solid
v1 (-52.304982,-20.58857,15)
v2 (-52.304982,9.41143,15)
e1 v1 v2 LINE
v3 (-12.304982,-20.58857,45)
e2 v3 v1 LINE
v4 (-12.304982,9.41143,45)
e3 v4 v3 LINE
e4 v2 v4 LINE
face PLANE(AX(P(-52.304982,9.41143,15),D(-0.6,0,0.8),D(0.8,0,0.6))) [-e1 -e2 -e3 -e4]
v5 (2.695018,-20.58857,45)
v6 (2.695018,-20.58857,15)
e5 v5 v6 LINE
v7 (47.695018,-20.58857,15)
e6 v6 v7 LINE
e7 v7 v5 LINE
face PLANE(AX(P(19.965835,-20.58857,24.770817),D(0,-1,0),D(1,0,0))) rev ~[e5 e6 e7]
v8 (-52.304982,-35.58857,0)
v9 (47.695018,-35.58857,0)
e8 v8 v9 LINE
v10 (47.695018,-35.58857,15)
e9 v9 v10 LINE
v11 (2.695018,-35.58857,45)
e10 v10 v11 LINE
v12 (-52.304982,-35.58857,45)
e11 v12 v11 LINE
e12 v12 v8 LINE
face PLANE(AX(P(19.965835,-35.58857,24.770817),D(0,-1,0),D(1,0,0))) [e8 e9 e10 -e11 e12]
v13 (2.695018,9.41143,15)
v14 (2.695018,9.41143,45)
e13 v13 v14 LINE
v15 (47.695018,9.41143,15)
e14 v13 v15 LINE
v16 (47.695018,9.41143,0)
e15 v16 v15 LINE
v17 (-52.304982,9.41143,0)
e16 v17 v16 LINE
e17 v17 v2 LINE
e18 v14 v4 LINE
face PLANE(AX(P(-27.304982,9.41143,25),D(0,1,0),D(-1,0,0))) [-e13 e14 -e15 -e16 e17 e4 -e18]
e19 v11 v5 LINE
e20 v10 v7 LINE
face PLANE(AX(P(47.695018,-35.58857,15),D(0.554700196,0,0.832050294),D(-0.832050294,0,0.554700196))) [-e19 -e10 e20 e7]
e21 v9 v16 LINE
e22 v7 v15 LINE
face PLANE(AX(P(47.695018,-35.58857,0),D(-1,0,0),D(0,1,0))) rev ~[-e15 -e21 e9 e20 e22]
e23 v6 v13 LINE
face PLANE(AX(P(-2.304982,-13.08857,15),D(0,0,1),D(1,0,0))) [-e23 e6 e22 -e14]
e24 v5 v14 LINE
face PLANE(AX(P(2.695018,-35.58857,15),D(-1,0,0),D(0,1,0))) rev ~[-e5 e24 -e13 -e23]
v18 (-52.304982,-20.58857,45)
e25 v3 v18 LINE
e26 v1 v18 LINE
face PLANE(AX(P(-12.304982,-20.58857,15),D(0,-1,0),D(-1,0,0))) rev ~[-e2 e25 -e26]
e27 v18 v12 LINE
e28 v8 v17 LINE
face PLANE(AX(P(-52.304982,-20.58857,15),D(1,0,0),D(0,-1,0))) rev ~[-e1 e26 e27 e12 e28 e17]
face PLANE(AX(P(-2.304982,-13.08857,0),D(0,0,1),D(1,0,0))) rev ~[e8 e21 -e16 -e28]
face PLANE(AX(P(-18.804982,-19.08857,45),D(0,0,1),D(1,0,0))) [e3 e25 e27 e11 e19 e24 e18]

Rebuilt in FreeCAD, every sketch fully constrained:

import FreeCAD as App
import Part
import Sketcher

V = App.Vector

doc = App.newDocument("Part")
params = doc.addObject("Spreadsheet::Sheet", "Params")
for row, (alias, value) in enumerate([
    ("sketch1_width", "100 mm"),
    ("sketch1_height", "45 mm"),
    ("pad1_length", "15 mm"),
    ("sketch2_width", "15 mm"),
    ("sketch2_width2", "40 mm"),
    ("sketch2_height", "45 mm"),
    ("pad2_length", "30 mm"),
    ("sketch3_width", "40 mm"),
    ("sketch3_height", "30 mm"),
    ("pad3_length", "33 mm"),
    ("sketch4_width", "45 mm"),
    ("sketch4_height", "30 mm"),
    ("pad4_length", "15 mm"),
], start=1):
    params.set(f"A{row}", alias)
    params.set(f"B{row}", "=" + value)
    params.setAlias(f"B{row}", alias)

body = doc.addObject("PartDesign::Body", "Body")

# Sketch on XY plane
sketch1 = body.newObject("Sketcher::SketchObject", "Sketch")
sketch1.AttachmentSupport = (doc.getObject("XY_Plane"), [""])
sketch1.MapMode = "FlatFace"
sketch1.addGeometry([
    Part.LineSegment(V(-52.304982, 9.41143, 0), V(-52.304982, -35.58857, 0)),
    Part.LineSegment(V(-52.304982, -35.58857, 0), V(47.695018, -35.58857, 0)),
    Part.LineSegment(V(47.695018, -35.58857, 0), V(47.695018, 9.41143, 0)),
    Part.LineSegment(V(47.695018, 9.41143, 0), V(-52.304982, 9.41143, 0)),
], False)
sketch1.addConstraint([
    Sketcher.Constraint("Coincident", 0, 2, 1, 1),
    Sketcher.Constraint("Coincident", 1, 2, 2, 1),
    Sketcher.Constraint("Coincident", 2, 2, 3, 1),
    Sketcher.Constraint("Coincident", 3, 2, 0, 1),
    Sketcher.Constraint("Vertical", 0),
    Sketcher.Constraint("Horizontal", 1),
    Sketcher.Constraint("Vertical", 2),
    Sketcher.Constraint("Horizontal", 3),
    Sketcher.Constraint("DistanceX", 1, 1, 1, 2, 100.0),
    Sketcher.Constraint("DistanceY", 0, 2, 0, 1, 45.0),
    Sketcher.Constraint("DistanceY", 0, 2, -1, 1, 35.58857),
    Sketcher.Constraint("DistanceX", 0, 2, -1, 1, 52.304982),
])
sketch1.setExpression("Constraints[8]", "Params.sketch1_width")
sketch1.setExpression("Constraints[9]", "Params.sketch1_height")
pad1 = body.newObject("PartDesign::Pad", "Pad")
pad1.Profile = sketch1
pad1.setExpression("Length", "Params.pad1_length")

# Sketch on XY plane
sketch2 = body.newObject("Sketcher::SketchObject", "Sketch001")
sketch2.AttachmentSupport = (doc.getObject("XY_Plane"), [""])
sketch2.MapMode = "FlatFace"
sketch2.AttachmentOffset = App.Placement(V(0, 0, 15), App.Rotation())
sketch2.addGeometry([
    Part.LineSegment(V(2.695018, -35.58857, 0), V(2.695018, 9.41143, 0)),  # 0
    Part.LineSegment(V(2.695018, 9.41143, 0), V(-12.304982, 9.41143, 0)),  # 1
    Part.LineSegment(V(-12.304982, 9.41143, 0), V(-12.304982, -20.58857, 0)),  # 2
    Part.LineSegment(V(-12.304982, -20.58857, 0), V(-52.304982, -20.58857, 0)),  # 3
    Part.LineSegment(V(-52.304982, -20.58857, 0), V(-52.304982, -35.58857, 0)),  # 4
    Part.LineSegment(V(-52.304982, -35.58857, 0), V(2.695018, -35.58857, 0)),  # 5
], False)
sketch2.addConstraint([
    Sketcher.Constraint("Coincident", 0, 2, 1, 1),
    Sketcher.Constraint("Coincident", 1, 2, 2, 1),
    Sketcher.Constraint("Coincident", 2, 2, 3, 1),
    Sketcher.Constraint("Coincident", 3, 2, 4, 1),
    Sketcher.Constraint("Coincident", 4, 2, 5, 1),
    Sketcher.Constraint("Coincident", 5, 2, 0, 1),
    Sketcher.Constraint("Vertical", 0),
    Sketcher.Constraint("Horizontal", 1),
    Sketcher.Constraint("Vertical", 2),
    Sketcher.Constraint("Horizontal", 3),
    Sketcher.Constraint("Vertical", 4),
    Sketcher.Constraint("Horizontal", 5),
    Sketcher.Constraint("Equal", 1, 4),
    Sketcher.Constraint("DistanceX", 1, 2, 1, 1, 15.0),
    Sketcher.Constraint("DistanceX", 3, 2, 3, 1, 40.0),
    Sketcher.Constraint("DistanceY", 0, 1, 0, 2, 45.0),
    Sketcher.Constraint("DistanceX", -1, 1, 0, 2, 2.695018),
    Sketcher.Constraint("DistanceY", -1, 1, 0, 2, 9.41143),
])
sketch2.setExpression("Constraints[13]", "Params.sketch2_width")
sketch2.setExpression("Constraints[14]", "Params.sketch2_width2")
sketch2.setExpression("Constraints[15]", "Params.sketch2_height")
pad2 = body.newObject("PartDesign::Pad", "Pad001")
pad2.Profile = sketch2
pad2.setExpression("Length", "Params.pad2_length")

# Sketch on XZ plane
sketch3 = body.newObject("Sketcher::SketchObject", "Sketch002")
sketch3.AttachmentSupport = (doc.getObject("XZ_Plane"), [""])
sketch3.MapMode = "FlatFace"
sketch3.AttachmentOffset = App.Placement(V(0, 0, -9.41143), App.Rotation())
sketch3.addGeometry([
    Part.LineSegment(V(-52.304982, 15, 0), V(-12.304982, 45, 0)),
    Part.LineSegment(V(-12.304982, 45, 0), V(-12.304982, 15, 0)),
    Part.LineSegment(V(-12.304982, 15, 0), V(-52.304982, 15, 0)),
], False)
sketch3.addConstraint([
    Sketcher.Constraint("Coincident", 0, 2, 1, 1),
    Sketcher.Constraint("Coincident", 1, 2, 2, 1),
    Sketcher.Constraint("Coincident", 2, 2, 0, 1),
    Sketcher.Constraint("Vertical", 1),
    Sketcher.Constraint("Horizontal", 2),
    Sketcher.Constraint("DistanceX", 2, 2, 2, 1, 40.0),
    Sketcher.Constraint("DistanceY", 1, 2, 1, 1, 30.0),
    Sketcher.Constraint("DistanceY", -1, 1, 0, 2, 45.0),
    Sketcher.Constraint("DistanceX", 0, 2, -1, 1, 12.304982),
])
sketch3.setExpression("Constraints[5]", "Params.sketch3_width")
sketch3.setExpression("Constraints[6]", "Params.sketch3_height")
pad3 = body.newObject("PartDesign::Pad", "Pad002")
pad3.Profile = sketch3
pad3.setExpression("Length", "Params.pad3_length")

# Sketch on XZ plane
sketch4 = body.newObject("Sketcher::SketchObject", "Sketch003")
sketch4.AttachmentSupport = (doc.getObject("XZ_Plane"), [""])
sketch4.MapMode = "FlatFace"
sketch4.AttachmentOffset = App.Placement(V(0, 0, 35.58857), App.Rotation())
sketch4.addGeometry([
    Part.LineSegment(V(47.695018, 15, 0), V(2.695018, 45, 0)),
    Part.LineSegment(V(2.695018, 45, 0), V(2.695018, 15, 0)),
    Part.LineSegment(V(2.695018, 15, 0), V(47.695018, 15, 0)),
], False)
sketch4.addConstraint([
    Sketcher.Constraint("Coincident", 0, 2, 1, 1),
    Sketcher.Constraint("Coincident", 1, 2, 2, 1),
    Sketcher.Constraint("Coincident", 2, 2, 0, 1),
    Sketcher.Constraint("Vertical", 1),
    Sketcher.Constraint("Horizontal", 2),
    Sketcher.Constraint("DistanceX", 2, 1, 2, 2, 45.0),
    Sketcher.Constraint("DistanceY", 1, 2, 1, 1, 30.0),
    Sketcher.Constraint("DistanceY", -1, 1, 0, 2, 45.0),
    Sketcher.Constraint("DistanceX", -1, 1, 0, 2, 2.695018),
])
sketch4.setExpression("Constraints[5]", "Params.sketch4_width")
sketch4.setExpression("Constraints[6]", "Params.sketch4_height")
pad4 = body.newObject("PartDesign::Pad", "Pad003")
pad4.Profile = sketch4
pad4.setExpression("Length", "Params.pad4_length")
pad4.Reversed = True

doc.recompute()
